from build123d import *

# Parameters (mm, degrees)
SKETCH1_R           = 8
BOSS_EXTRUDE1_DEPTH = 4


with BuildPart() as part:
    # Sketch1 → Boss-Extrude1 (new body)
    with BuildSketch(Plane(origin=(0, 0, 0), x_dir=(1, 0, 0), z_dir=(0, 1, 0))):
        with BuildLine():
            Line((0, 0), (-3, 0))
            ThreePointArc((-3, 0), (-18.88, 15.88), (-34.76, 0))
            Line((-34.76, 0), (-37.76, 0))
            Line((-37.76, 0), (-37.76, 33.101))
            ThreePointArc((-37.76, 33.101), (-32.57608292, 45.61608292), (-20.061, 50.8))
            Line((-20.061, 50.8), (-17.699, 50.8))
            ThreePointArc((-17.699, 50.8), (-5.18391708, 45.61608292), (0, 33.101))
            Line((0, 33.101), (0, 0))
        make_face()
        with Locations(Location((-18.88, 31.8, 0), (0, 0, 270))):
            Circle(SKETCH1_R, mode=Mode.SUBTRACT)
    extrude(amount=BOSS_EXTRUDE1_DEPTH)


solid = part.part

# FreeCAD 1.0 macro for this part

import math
import FreeCAD as App
import Part
import Sketcher
from FreeCAD import Vector
Q = App.Units.Quantity

doc = App.newDocument("Part")
body = doc.addObject("PartDesign::Body", "Body")

# Sketch on XZ plane
sketch1 = body.newObject("Sketcher::SketchObject", "Sketch")
sketch1.AttachmentSupport = (doc.getObject("XZ_Plane"), [""])
sketch1.MapMode = "FlatFace"
sketch1.addGeometry([
    Part.LineSegment(Vector(-3, 0, 0), Vector(0, 0, 0)),  # 0
    Part.LineSegment(Vector(0, 0, 0), Vector(0, -33.1, 0)),  # 1
    Part.ArcOfCircle(Part.Circle(Vector(-17.7, -33.1, 0), Vector(0, 0, 1), 17.7), math.radians(-90), math.radians(0)),  # 2
    Part.LineSegment(Vector(-17.7, -50.8, 0), Vector(-20.1, -50.8, 0)),  # 3
    Part.ArcOfCircle(Part.Circle(Vector(-20.1, -33.1, 0), Vector(0, 0, 1), 17.7), math.radians(-180), math.radians(-90)),  # 4
    Part.LineSegment(Vector(-37.8, -33.1, 0), Vector(-37.8, 0, 0)),  # 5
    Part.LineSegment(Vector(-37.8, 0, 0), Vector(-34.8, 0, 0)),  # 6
    Part.ArcOfCircle(Part.Circle(Vector(-18.9, 0, 0), Vector(0, 0, 1), 15.9), math.radians(180), math.radians(360)),  # 7
    Part.Circle(Vector(-18.9, -31.8, 0), Vector(0, 0, 1), 8),  # 8
], False)
sketch1.addConstraint([
    Sketcher.Constraint("Coincident", 0, 2, 1, 1),
    Sketcher.Constraint("Tangent", 1, 2, 2, 2),
    Sketcher.Constraint("Tangent", 2, 1, 3, 1),
    Sketcher.Constraint("Tangent", 3, 2, 4, 2),
    Sketcher.Constraint("Tangent", 4, 1, 5, 1),
    Sketcher.Constraint("Coincident", 5, 2, 6, 1),
    Sketcher.Constraint("Coincident", 6, 2, 7, 1),
    Sketcher.Constraint("Coincident", 7, 2, 0, 1),
    Sketcher.Constraint("Horizontal", 0),
    Sketcher.Constraint("Vertical", 1),
    Sketcher.Constraint("Horizontal", 3),
    Sketcher.Constraint("Vertical", 5),
    Sketcher.Constraint("Horizontal", 6),
    Sketcher.Constraint("Coincident", 0, 2, -1, 1),
    Sketcher.Constraint("Equal", 2, 4),
    Sketcher.Constraint("PointOnObject", 7, 3, -1),
    Sketcher.Constraint("PointOnObject", 5, 2, -1),
    Sketcher.Constraint("Vertical", 7, 3, 8, 3),
    Sketcher.Constraint("Equal", 0, 6),
    Sketcher.Constraint("Diameter", 8, Q("16 mm")),
    Sketcher.Constraint("DistanceX", 0, 1, 0, 2, Q("3 mm")),
    Sketcher.Constraint("Radius", 7, Q("15.88 mm")),
    Sketcher.Constraint("Radius", 2, Q("17.699 mm")),
    Sketcher.Constraint("DistanceY", 2, 1, 8, 3, Q("19 mm")),
    Sketcher.Constraint("DistanceY", 8, 3, -1, 1, Q("31.8 mm")),
])
pad1 = body.newObject("PartDesign::Pad", "Pad")
pad1.Profile = sketch1
pad1.Length = 4
pad1.Reversed = True

doc.recompute()
